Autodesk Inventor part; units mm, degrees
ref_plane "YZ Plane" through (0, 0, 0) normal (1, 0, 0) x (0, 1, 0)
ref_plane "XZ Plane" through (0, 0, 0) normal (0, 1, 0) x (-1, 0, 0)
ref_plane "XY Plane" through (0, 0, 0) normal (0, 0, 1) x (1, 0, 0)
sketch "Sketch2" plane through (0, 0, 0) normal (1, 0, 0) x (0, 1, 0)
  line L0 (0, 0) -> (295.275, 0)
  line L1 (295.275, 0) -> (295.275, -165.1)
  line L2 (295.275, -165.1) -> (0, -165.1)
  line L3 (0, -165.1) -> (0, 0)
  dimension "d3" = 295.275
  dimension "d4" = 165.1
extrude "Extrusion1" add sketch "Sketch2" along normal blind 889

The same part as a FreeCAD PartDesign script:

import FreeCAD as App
import Part
import Sketcher
from FreeCAD import Vector
Q = App.Units.Quantity


def add_polygon(sketch, points):
    """Adds a closed chain of lines whose ends are joined by coincident constraints."""
    first, n = sketch.GeometryCount, len(points)
    for a, b in zip(points, points[1:] + points[:1]):
        sketch.addGeometry(Part.LineSegment(App.Vector(*a, 0), App.Vector(*b, 0)), False)
    for i in range(n):
        sketch.addConstraint(Sketcher.Constraint("Coincident", first + i, 2, first + (i + 1) % n, 1))

doc = App.newDocument("Part")
body = doc.addObject("PartDesign::Body", "Body")

sketch1 = body.newObject("Sketcher::SketchObject", "Sketch")
sketch1.AttachmentSupport = (doc.getObject("YZ_Plane"), [""])
sketch1.MapMode = "FlatFace"
add_polygon(sketch1, [(295, 0), (0, 0), (0, -165), (295, -165)])
sketch1.addConstraint([
    Sketcher.Constraint("Horizontal", 0),
    Sketcher.Constraint("Vertical", 1),
    Sketcher.Constraint("Horizontal", 2),
    Sketcher.Constraint("Vertical", 3),
    Sketcher.Constraint("Coincident", 0, 2, -1, 1),
    Sketcher.Constraint("DistanceY", 1, 2, 1, 1, Q("6.5 in")),
    Sketcher.Constraint("DistanceX", 0, 2, 0, 1, Q("11.625 in")),
])
pad1 = body.newObject("PartDesign::Pad", "Pad")
pad1.Profile = sketch1
pad1.Length = Q("35 in")

doc.recompute()
